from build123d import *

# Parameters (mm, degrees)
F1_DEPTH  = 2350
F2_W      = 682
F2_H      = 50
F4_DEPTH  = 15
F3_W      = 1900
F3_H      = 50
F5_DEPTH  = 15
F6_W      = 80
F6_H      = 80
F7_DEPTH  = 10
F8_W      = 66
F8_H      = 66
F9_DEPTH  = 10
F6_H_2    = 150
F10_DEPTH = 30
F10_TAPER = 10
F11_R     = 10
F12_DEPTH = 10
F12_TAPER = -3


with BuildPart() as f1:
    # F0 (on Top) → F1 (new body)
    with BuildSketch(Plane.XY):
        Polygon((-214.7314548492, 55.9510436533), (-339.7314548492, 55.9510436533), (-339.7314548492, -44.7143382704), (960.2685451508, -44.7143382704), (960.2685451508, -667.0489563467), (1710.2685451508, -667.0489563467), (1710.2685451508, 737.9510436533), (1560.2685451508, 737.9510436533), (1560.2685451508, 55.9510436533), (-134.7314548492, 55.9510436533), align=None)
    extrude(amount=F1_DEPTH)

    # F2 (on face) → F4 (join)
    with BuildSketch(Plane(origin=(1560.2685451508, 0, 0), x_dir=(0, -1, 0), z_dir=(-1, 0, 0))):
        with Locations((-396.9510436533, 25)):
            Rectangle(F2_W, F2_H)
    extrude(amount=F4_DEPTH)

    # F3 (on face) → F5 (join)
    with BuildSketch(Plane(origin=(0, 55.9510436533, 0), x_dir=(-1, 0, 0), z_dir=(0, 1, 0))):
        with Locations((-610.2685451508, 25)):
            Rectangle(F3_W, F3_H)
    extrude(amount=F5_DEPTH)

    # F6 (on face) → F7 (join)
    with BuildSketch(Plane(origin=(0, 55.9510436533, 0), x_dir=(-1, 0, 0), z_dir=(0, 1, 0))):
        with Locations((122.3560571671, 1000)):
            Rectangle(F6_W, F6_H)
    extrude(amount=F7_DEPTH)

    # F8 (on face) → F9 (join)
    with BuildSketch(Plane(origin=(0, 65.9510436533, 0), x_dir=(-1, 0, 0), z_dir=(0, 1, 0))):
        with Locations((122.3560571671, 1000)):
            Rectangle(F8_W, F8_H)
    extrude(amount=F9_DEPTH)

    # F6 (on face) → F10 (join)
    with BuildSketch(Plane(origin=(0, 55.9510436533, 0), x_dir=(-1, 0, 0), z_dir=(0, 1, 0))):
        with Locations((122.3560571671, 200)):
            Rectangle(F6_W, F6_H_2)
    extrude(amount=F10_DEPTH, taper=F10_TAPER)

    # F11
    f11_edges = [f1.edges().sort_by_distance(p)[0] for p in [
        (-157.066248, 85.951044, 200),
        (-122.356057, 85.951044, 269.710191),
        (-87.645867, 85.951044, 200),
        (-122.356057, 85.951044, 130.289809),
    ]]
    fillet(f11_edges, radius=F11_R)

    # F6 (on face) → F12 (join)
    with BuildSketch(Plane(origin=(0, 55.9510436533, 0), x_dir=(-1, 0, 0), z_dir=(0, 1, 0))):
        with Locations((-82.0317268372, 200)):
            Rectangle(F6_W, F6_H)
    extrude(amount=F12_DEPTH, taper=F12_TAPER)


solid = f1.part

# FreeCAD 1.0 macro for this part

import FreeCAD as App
import Part
import Sketcher

V = App.Vector


def edges_at(feature, points):
    """Names of the edges that pass closest to the given points."""
    edges = feature.Shape.Edges
    near = lambda p: min(range(len(edges)), key=lambda i: edges[i].distToShape(Part.Vertex(*p))[0])
    return sorted({f"Edge{near(p) + 1}" for p in points})


def add_polygon(sketch, points):
    """Adds a closed chain of lines whose ends are joined by coincident constraints."""
    first, n = sketch.GeometryCount, len(points)
    for a, b in zip(points, points[1:] + points[:1]):
        sketch.addGeometry(Part.LineSegment(App.Vector(*a, 0), App.Vector(*b, 0)), False)
    for i in range(n):
        sketch.addConstraint(Sketcher.Constraint("Coincident", first + i, 2, first + (i + 1) % n, 1))

doc = App.newDocument("Part")
params = doc.addObject("Spreadsheet::Sheet", "Params")
for row, (alias, value) in enumerate([
    ("sketch1_width", "1300 mm"),
    ("sketch1_width2", "750 mm"),
    ("sketch1_width3", "150 mm"),
    ("sketch1_height", "1405 mm"),
    ("sketch1_height2", "682 mm"),
    ("pad1_length", "2350 mm"),
    ("sketch2_width", "682 mm"),
    ("sketch2_height", "50 mm"),
    ("pad2_length", "15 mm"),
    ("sketch3_width", "1900 mm"),
    ("sketch3_height", "50 mm"),
    ("pad3_length", "15 mm"),
    ("sketch4_width", "80 mm"),
    ("pad4_length", "10 mm"),
    ("sketch5_width", "66 mm"),
    ("pad5_length", "10 mm"),
    ("sketch6_width", "80 mm"),
    ("sketch6_height", "150 mm"),
    ("pad6_length", "30 mm"),
    ("pad6_taper", "-10 deg"),
    ("fillet_radius", "10 mm"),
    ("sketch7_width", "80 mm"),
    ("pad7_length", "10 mm"),
    ("pad7_taper", "3 deg"),
], start=1):
    params.set(f"A{row}", alias)
    params.set(f"B{row}", "=" + value)
    params.setAlias(f"B{row}", alias)

body = doc.addObject("PartDesign::Body", "Body")

# Sketch on XY plane
sketch1 = doc.addObject("Sketcher::SketchObject", "Sketch")
body.addObject(sketch1)
sketch1.AttachmentSupport = (doc.XY_Plane, [""])
sketch1.MapMode = "FlatFace"
add_polygon(sketch1, [(-339.731455, 55.951044), (-339.731455, -44.714338), (960.268545, -44.714338), (960.268545, -667.048956), (1710.268545, -667.048956), (1710.268545, 737.951044), (1560.268545, 737.951044), (1560.268545, 55.951044)])  # lines 0-7
sketch1.addConstraint([
    Sketcher.Constraint("Vertical", 0),
    Sketcher.Constraint("Horizontal", 1),
    Sketcher.Constraint("Vertical", 2),
    Sketcher.Constraint("Horizontal", 3),
    Sketcher.Constraint("Vertical", 4),
    Sketcher.Constraint("Horizontal", 5),
    Sketcher.Constraint("Vertical", 6),
    Sketcher.Constraint("Horizontal", 7),
    Sketcher.Constraint("DistanceX", 1, 1, 1, 2, 1300.0),
    Sketcher.Constraint("DistanceX", 3, 1, 3, 2, 750.0),
    Sketcher.Constraint("DistanceX", 5, 2, 5, 1, 150.0),
    Sketcher.Constraint("DistanceY", 4, 1, 4, 2, 1405.0),
    Sketcher.Constraint("DistanceY", 6, 2, 6, 1, 682.0),
    Sketcher.Constraint("DistanceY", 0, 2, 0, 1, 100.665382),
    Sketcher.Constraint("DistanceY", 0, 2, -1, 1, 44.714338),
    Sketcher.Constraint("DistanceX", 0, 2, -1, 1, 339.731455),
])
sketch1.setExpression("Constraints[16]", "Params.sketch1_width")
sketch1.setExpression("Constraints[17]", "Params.sketch1_width2")
sketch1.setExpression("Constraints[18]", "Params.sketch1_width3")
sketch1.setExpression("Constraints[19]", "Params.sketch1_height")
sketch1.setExpression("Constraints[20]", "Params.sketch1_height2")
pad1 = doc.addObject("PartDesign::Pad", "Pad")
body.addObject(pad1)
pad1.Profile = sketch1
pad1.setExpression("Length", "Params.pad1_length")

# Sketch on YZ plane
sketch2 = doc.addObject("Sketcher::SketchObject", "Sketch001")
body.addObject(sketch2)
sketch2.AttachmentSupport = (doc.YZ_Plane, [""])
sketch2.MapMode = "FlatFace"
sketch2.AttachmentOffset = App.Placement(V(0, 0, 1560.268545), App.Rotation())
add_polygon(sketch2, [(737.951044, 50), (737.951044, 0), (55.951044, 0), (55.951044, 50)])  # lines 0-3
sketch2.addConstraint([
    Sketcher.Constraint("Vertical", 0),
    Sketcher.Constraint("Horizontal", 1),
    Sketcher.Constraint("Vertical", 2),
    Sketcher.Constraint("Horizontal", 3),
    Sketcher.Constraint("PointOnObject", 0, 2, -1),
    Sketcher.Constraint("DistanceX", 1, 2, 1, 1, 682.0),
    Sketcher.Constraint("DistanceY", 0, 2, 0, 1, 50.0),
    Sketcher.Constraint("DistanceX", -1, 1, 0, 2, 737.951044),
])
sketch2.setExpression("Constraints[9]", "Params.sketch2_width")
sketch2.setExpression("Constraints[10]", "Params.sketch2_height")
pad2 = doc.addObject("PartDesign::Pad", "Pad001")
body.addObject(pad2)
pad2.Profile = sketch2
pad2.setExpression("Length", "Params.pad2_length")
pad2.Reversed = True

# Sketch on XZ plane
sketch3 = doc.addObject("Sketcher::SketchObject", "Sketch002")
body.addObject(sketch3)
sketch3.AttachmentSupport = (doc.XZ_Plane, [""])
sketch3.MapMode = "FlatFace"
sketch3.AttachmentOffset = App.Placement(V(0, 0, -55.951044), App.Rotation())
add_polygon(sketch3, [(1560.268545, 50), (1560.268545, 0), (-339.731455, 0), (-339.731455, 50)])  # lines 0-3
sketch3.addConstraint([
    Sketcher.Constraint("Vertical", 0),
    Sketcher.Constraint("Horizontal", 1),
    Sketcher.Constraint("Vertical", 2),
    Sketcher.Constraint("Horizontal", 3),
    Sketcher.Constraint("PointOnObject", 0, 2, -1),
    Sketcher.Constraint("DistanceX", 1, 2, 1, 1, 1900.0),
    Sketcher.Constraint("DistanceY", 0, 2, 0, 1, 50.0),
    Sketcher.Constraint("DistanceX", -1, 1, 0, 2, 1560.268545),
])
sketch3.setExpression("Constraints[9]", "Params.sketch3_width")
sketch3.setExpression("Constraints[10]", "Params.sketch3_height")
pad3 = doc.addObject("PartDesign::Pad", "Pad002")
body.addObject(pad3)
pad3.Profile = sketch3
pad3.setExpression("Length", "Params.pad3_length")
pad3.Reversed = True

# Sketch on XZ plane
sketch4 = doc.addObject("Sketcher::SketchObject", "Sketch003")
body.addObject(sketch4)
sketch4.AttachmentSupport = (doc.XZ_Plane, [""])
sketch4.MapMode = "FlatFace"
sketch4.AttachmentOffset = App.Placement(V(0, 0, -55.951044), App.Rotation())
add_polygon(sketch4, [(-82.356057, 1040), (-82.356057, 960), (-162.356057, 960), (-162.356057, 1040)])  # lines 0-3
sketch4.addConstraint([
    Sketcher.Constraint("Vertical", 0),
    Sketcher.Constraint("Horizontal", 1),
    Sketcher.Constraint("Vertical", 2),
    Sketcher.Constraint("Horizontal", 3),
    Sketcher.Constraint("Equal", 3, 0),
    Sketcher.Constraint("DistanceX", 1, 2, 1, 1, 80.0),
    Sketcher.Constraint("DistanceY", -1, 1, 0, 2, 960.0),
    Sketcher.Constraint("DistanceX", 0, 2, -1, 1, 82.356057),
])
sketch4.setExpression("Constraints[9]", "Params.sketch4_width")
pad4 = doc.addObject("PartDesign::Pad", "Pad003")
body.addObject(pad4)
pad4.Profile = sketch4
pad4.setExpression("Length", "Params.pad4_length")
pad4.Reversed = True

# Sketch on XZ plane
sketch5 = doc.addObject("Sketcher::SketchObject", "Sketch004")
body.addObject(sketch5)
sketch5.AttachmentSupport = (doc.XZ_Plane, [""])
sketch5.MapMode = "FlatFace"
sketch5.AttachmentOffset = App.Placement(V(0, 0, -65.951044), App.Rotation())
add_polygon(sketch5, [(-89.356057, 1033), (-89.356057, 967), (-155.356057, 967), (-155.356057, 1033)])  # lines 0-3
sketch5.addConstraint([
    Sketcher.Constraint("Vertical", 0),
    Sketcher.Constraint("Horizontal", 1),
    Sketcher.Constraint("Vertical", 2),
    Sketcher.Constraint("Horizontal", 3),
    Sketcher.Constraint("Equal", 3, 0),
    Sketcher.Constraint("DistanceX", 1, 2, 1, 1, 66.0),
    Sketcher.Constraint("DistanceY", -1, 1, 0, 2, 967.0),
    Sketcher.Constraint("DistanceX", 0, 2, -1, 1, 89.356057),
])
sketch5.setExpression("Constraints[9]", "Params.sketch5_width")
pad5 = doc.addObject("PartDesign::Pad", "Pad004")
body.addObject(pad5)
pad5.Profile = sketch5
pad5.setExpression("Length", "Params.pad5_length")
pad5.Reversed = True

# Sketch on XZ plane
sketch6 = doc.addObject("Sketcher::SketchObject", "Sketch005")
body.addObject(sketch6)
sketch6.AttachmentSupport = (doc.XZ_Plane, [""])
sketch6.MapMode = "FlatFace"
sketch6.AttachmentOffset = App.Placement(V(0, 0, -55.951044), App.Rotation())
add_polygon(sketch6, [(-82.356057, 275), (-82.356057, 125), (-162.356057, 125), (-162.356057, 275)])  # lines 0-3
sketch6.addConstraint([
    Sketcher.Constraint("Vertical", 0),
    Sketcher.Constraint("Horizontal", 1),
    Sketcher.Constraint("Vertical", 2),
    Sketcher.Constraint("Horizontal", 3),
    Sketcher.Constraint("DistanceX", 1, 2, 1, 1, 80.0),
    Sketcher.Constraint("DistanceY", 0, 2, 0, 1, 150.0),
    Sketcher.Constraint("DistanceY", -1, 1, 0, 2, 125.0),
    Sketcher.Constraint("DistanceX", 0, 2, -1, 1, 82.356057),
])
sketch6.setExpression("Constraints[8]", "Params.sketch6_width")
sketch6.setExpression("Constraints[9]", "Params.sketch6_height")
pad6 = doc.addObject("PartDesign::Pad", "Pad005")
body.addObject(pad6)
pad6.Profile = sketch6
pad6.setExpression("Length", "Params.pad6_length")
pad6.Reversed = True
pad6.setExpression("TaperAngle", "Params.pad6_taper")
doc.recompute()

fillet = doc.addObject("PartDesign::Fillet", "Fillet")
body.addObject(fillet)
fillet.Base = (pad6, edges_at(pad6, [
    (-157.066, 85.951, 200),
    (-122.356, 85.951, 269.71),
    (-87.646, 85.951, 200),
    (-122.356, 85.951, 130.29),
]))
fillet.setExpression("Radius", "Params.fillet_radius")

# Sketch on XZ plane
sketch7 = doc.addObject("Sketcher::SketchObject", "Sketch006")
body.addObject(sketch7)
sketch7.AttachmentSupport = (doc.XZ_Plane, [""])
sketch7.MapMode = "FlatFace"
sketch7.AttachmentOffset = App.Placement(V(0, 0, -55.951044), App.Rotation())
add_polygon(sketch7, [(122.031727, 240), (122.031727, 160), (42.031727, 160), (42.031727, 240)])  # lines 0-3
sketch7.addConstraint([
    Sketcher.Constraint("Vertical", 0),
    Sketcher.Constraint("Horizontal", 1),
    Sketcher.Constraint("Vertical", 2),
    Sketcher.Constraint("Horizontal", 3),
    Sketcher.Constraint("Equal", 3, 0),
    Sketcher.Constraint("DistanceX", 1, 2, 1, 1, 80.0),
    Sketcher.Constraint("DistanceY", -1, 1, 0, 2, 160.0),
    Sketcher.Constraint("DistanceX", -1, 1, 0, 2, 122.031727),
])
sketch7.setExpression("Constraints[9]", "Params.sketch7_width")
pad7 = doc.addObject("PartDesign::Pad", "Pad006")
body.addObject(pad7)
pad7.Profile = sketch7
pad7.setExpression("Length", "Params.pad7_length")
pad7.Reversed = True
pad7.setExpression("TaperAngle", "Params.pad7_taper")

doc.recompute()
